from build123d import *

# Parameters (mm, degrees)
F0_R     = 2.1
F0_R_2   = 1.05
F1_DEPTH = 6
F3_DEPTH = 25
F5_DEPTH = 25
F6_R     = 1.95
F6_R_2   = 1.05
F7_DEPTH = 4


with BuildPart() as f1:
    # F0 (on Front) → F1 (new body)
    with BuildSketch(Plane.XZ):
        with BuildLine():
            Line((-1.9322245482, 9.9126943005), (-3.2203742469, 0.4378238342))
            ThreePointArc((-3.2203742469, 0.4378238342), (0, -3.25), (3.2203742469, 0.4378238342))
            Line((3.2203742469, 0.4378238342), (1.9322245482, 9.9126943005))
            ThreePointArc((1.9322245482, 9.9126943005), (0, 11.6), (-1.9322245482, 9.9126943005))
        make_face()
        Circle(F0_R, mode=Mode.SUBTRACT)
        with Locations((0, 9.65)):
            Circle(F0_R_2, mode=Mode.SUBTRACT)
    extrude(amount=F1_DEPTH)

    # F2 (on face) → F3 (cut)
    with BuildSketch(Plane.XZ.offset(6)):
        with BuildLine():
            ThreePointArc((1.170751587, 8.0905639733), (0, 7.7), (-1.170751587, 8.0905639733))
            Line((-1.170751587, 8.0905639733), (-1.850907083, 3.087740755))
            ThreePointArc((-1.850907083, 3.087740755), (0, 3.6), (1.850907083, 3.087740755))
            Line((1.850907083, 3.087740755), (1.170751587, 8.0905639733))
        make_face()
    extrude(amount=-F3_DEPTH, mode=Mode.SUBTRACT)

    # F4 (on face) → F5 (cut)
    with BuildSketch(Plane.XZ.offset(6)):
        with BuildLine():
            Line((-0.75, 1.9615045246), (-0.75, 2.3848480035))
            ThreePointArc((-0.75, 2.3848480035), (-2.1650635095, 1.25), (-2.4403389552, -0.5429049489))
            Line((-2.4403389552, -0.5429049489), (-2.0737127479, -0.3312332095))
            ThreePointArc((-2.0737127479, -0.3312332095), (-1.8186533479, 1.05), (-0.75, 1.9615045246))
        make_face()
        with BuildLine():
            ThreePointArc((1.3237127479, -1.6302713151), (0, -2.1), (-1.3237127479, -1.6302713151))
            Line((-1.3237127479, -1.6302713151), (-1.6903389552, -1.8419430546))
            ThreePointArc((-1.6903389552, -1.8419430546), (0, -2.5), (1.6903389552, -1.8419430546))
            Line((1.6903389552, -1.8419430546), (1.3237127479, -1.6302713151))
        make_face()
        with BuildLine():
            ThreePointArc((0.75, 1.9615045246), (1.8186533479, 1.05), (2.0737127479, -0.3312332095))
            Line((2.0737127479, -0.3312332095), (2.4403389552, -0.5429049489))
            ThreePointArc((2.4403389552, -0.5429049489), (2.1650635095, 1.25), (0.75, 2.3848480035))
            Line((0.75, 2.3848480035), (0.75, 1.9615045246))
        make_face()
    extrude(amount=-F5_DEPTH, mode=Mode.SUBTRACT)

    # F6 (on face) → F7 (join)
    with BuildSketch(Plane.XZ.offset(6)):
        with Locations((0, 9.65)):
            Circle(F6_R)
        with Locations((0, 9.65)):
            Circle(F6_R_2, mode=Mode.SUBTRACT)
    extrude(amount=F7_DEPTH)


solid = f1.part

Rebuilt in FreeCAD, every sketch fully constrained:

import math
import FreeCAD as App
import Part
import Sketcher

V = App.Vector
Q = App.Units.Quantity

doc = App.newDocument("Part")
body = doc.addObject("PartDesign::Body", "Body")

# Sketch on XZ plane
sketch1 = doc.addObject("Sketcher::SketchObject", "Sketch")
body.addObject(sketch1)
sketch1.AttachmentSupport = (doc.XZ_Plane, [""])
sketch1.MapMode = "FlatFace"
sketch1.addGeometry(Part.LineSegment(V(-1.932225, 9.912694, 0), V(-3.220374, 0.437824, 0)), False)
sketch1.addGeometry(Part.ArcOfCircle(Part.Circle(V(0, 0, 0), V(0, 0, 1), 3.25), math.radians(172.257858), math.radians(367.742142)), False)
sketch1.addGeometry(Part.LineSegment(V(3.220374, 0.437824, 0), V(1.932225, 9.912694, 0)), False)
sketch1.addGeometry(Part.ArcOfCircle(Part.Circle(V(0, 9.65, 0), V(0, 0, 1), 1.95), math.radians(7.742142), math.radians(172.257858)), False)
sketch1.addGeometry(Part.Circle(V(0, 0, 0), V(0, 0, 1), 2.1), False)
sketch1.addGeometry(Part.Circle(V(0, 9.65, 0), V(0, 0, 1), 1.05), False)
sketch1.addConstraint(Sketcher.Constraint("Tangent", 0, 2, 1, 1))
sketch1.addConstraint(Sketcher.Constraint("Tangent", 1, 2, 2, 1))
sketch1.addConstraint(Sketcher.Constraint("Tangent", 2, 2, 3, 1))
sketch1.addConstraint(Sketcher.Constraint("Tangent", 3, 2, 0, 1))
sketch1.addConstraint(Sketcher.Constraint("Coincident", 1, 3, -1, 1))
sketch1.addConstraint(Sketcher.Constraint("Coincident", 4, 3, -1, 1))
sketch1.addConstraint(Sketcher.Constraint("Coincident", 5, 3, 3, 3))
sketch1.addConstraint(Sketcher.Constraint("PointOnObject", 3, 3, -2))
sketch1.addConstraint(Sketcher.Constraint("Diameter", 4, 4.2))
sketch1.addConstraint(Sketcher.Constraint("Diameter", 5, 2.1))
sketch1.addConstraint(Sketcher.Constraint("Radius", 1, 3.25))
sketch1.addConstraint(Sketcher.Constraint("Radius", 3, 1.95))
sketch1.addConstraint(Sketcher.Constraint("DistanceY", -1, 1, 3, 3, 9.65))
pad1 = doc.addObject("PartDesign::Pad", "Pad")
body.addObject(pad1)
pad1.Profile = sketch1
pad1.Length = 6

# Sketch on XZ plane
sketch2 = doc.addObject("Sketcher::SketchObject", "Sketch001")
body.addObject(sketch2)
sketch2.AttachmentSupport = (doc.XZ_Plane, [""])
sketch2.MapMode = "FlatFace"
sketch2.AttachmentOffset = App.Placement(V(0, 0, 6), App.Rotation())
sketch2.addGeometry(Part.ArcOfCircle(Part.Circle(V(0, 9.65, 0), V(0, 0, 1), 1.95), math.radians(-126.897507), math.radians(-53.102493)), False)
sketch2.addGeometry(Part.LineSegment(V(-1.170752, 8.090564, 0), V(-1.850907, 3.087741, 0)), False)
sketch2.addGeometry(Part.ArcOfCircle(Part.Circle(V(0, 0, 0), V(0, 0, 1), 3.6), math.radians(59.059954), math.radians(120.940046)), False)
sketch2.addGeometry(Part.LineSegment(V(1.850907, 3.087741, 0), V(1.170752, 8.090564, 0)), False)
sketch2.addConstraint(Sketcher.Constraint("Coincident", 0, 1, 1, 1))
sketch2.addConstraint(Sketcher.Constraint("Coincident", 1, 2, 2, 2))
sketch2.addConstraint(Sketcher.Constraint("Coincident", 2, 1, 3, 1))
sketch2.addConstraint(Sketcher.Constraint("Coincident", 3, 2, 0, 2))
sketch2.addConstraint(Sketcher.Constraint("Coincident", 2, 3, -1, 1))
sketch2.addConstraint(Sketcher.Constraint("Symmetric", 0, 1, 3, 2, -2))
sketch2.addConstraint(Sketcher.Constraint("Horizontal", 1, 2, 2, 1))
sketch2.addConstraint(Sketcher.Constraint("Radius", 2, 3.6))
sketch2.addConstraint(Sketcher.Constraint("Radius", 0, 1.95))
sketch2.addConstraint(Sketcher.Constraint("DistanceY", -1, 1, 0, 3, 9.65))
sketch2.addConstraint(Sketcher.Constraint("DistanceX", 0, 1, -1, 1, 1.170752))
sketch2.addConstraint(Sketcher.Constraint("DistanceY", -1, 1, 1, 2, 3.087741))
pocket1 = doc.addObject("PartDesign::Pocket", "Pocket")
body.addObject(pocket1)
pocket1.Profile = sketch2
pocket1.Length = 25

# Sketch on XZ plane
sketch3 = doc.addObject("Sketcher::SketchObject", "Sketch002")
body.addObject(sketch3)
sketch3.AttachmentSupport = (doc.XZ_Plane, [""])
sketch3.MapMode = "FlatFace"
sketch3.AttachmentOffset = App.Placement(V(0, 0, 6), App.Rotation())
sketch3.addGeometry(Part.LineSegment(V(-0.75, 1.961505, 0), V(-0.75, 2.384848, 0)), False)
sketch3.addGeometry(Part.ArcOfCircle(Part.Circle(V(0, 0, 0), V(0, 0, 1), 2.5), math.radians(107.457603), math.radians(192.542397)), False)
sketch3.addGeometry(Part.LineSegment(V(-2.440339, -0.542905, 0), V(-2.073713, -0.331233, 0)), False)
sketch3.addGeometry(Part.ArcOfCircle(Part.Circle(V(0, 0, 0), V(0, 0, 1), 2.1), math.radians(110.924832), math.radians(189.075168)), False)
sketch3.addGeometry(Part.ArcOfCircle(Part.Circle(V(0, 0, 0), V(0, 0, 1), 2.1), math.radians(-129.075168), math.radians(-50.924832)), False)
sketch3.addGeometry(Part.LineSegment(V(-1.323713, -1.630271, 0), V(-1.690339, -1.841943, 0)), False)
sketch3.addGeometry(Part.ArcOfCircle(Part.Circle(V(0, 0, 0), V(0, 0, 1), 2.5), math.radians(-132.542397), math.radians(-47.457603)), False)
sketch3.addGeometry(Part.LineSegment(V(1.690339, -1.841943, 0), V(1.323713, -1.630271, 0)), False)
sketch3.addGeometry(Part.ArcOfCircle(Part.Circle(V(0, 0, 0), V(0, 0, 1), 2.1), math.radians(-9.075168), math.radians(69.075168)), False)
sketch3.addGeometry(Part.LineSegment(V(2.073713, -0.331233, 0), V(2.440339, -0.542905, 0)), False)
sketch3.addGeometry(Part.ArcOfCircle(Part.Circle(V(0, 0, 0), V(0, 0, 1), 2.5), math.radians(-12.542397), math.radians(72.542397)), False)
sketch3.addGeometry(Part.LineSegment(V(0.75, 2.384848, 0), V(0.75, 1.961505, 0)), False)
sketch3.addConstraint(Sketcher.Constraint("Coincident", 0, 2, 1, 1))
sketch3.addConstraint(Sketcher.Constraint("Coincident", 1, 2, 2, 1))
sketch3.addConstraint(Sketcher.Constraint("Coincident", 2, 2, 3, 2))
sketch3.addConstraint(Sketcher.Constraint("Coincident", 3, 1, 0, 1))
sketch3.addConstraint(Sketcher.Constraint("Coincident", 4, 1, 5, 1))
sketch3.addConstraint(Sketcher.Constraint("Coincident", 5, 2, 6, 1))
sketch3.addConstraint(Sketcher.Constraint("Coincident", 6, 2, 7, 1))
sketch3.addConstraint(Sketcher.Constraint("Coincident", 7, 2, 4, 2))
sketch3.addConstraint(Sketcher.Constraint("Coincident", 8, 1, 9, 1))
sketch3.addConstraint(Sketcher.Constraint("Coincident", 9, 2, 10, 1))
sketch3.addConstraint(Sketcher.Constraint("Coincident", 10, 2, 11, 1))
sketch3.addConstraint(Sketcher.Constraint("Coincident", 11, 2, 8, 2))
sketch3.addConstraint(Sketcher.Constraint("Vertical", 0))
sketch3.addConstraint(Sketcher.Constraint("Vertical", 11))
sketch3.addConstraint(Sketcher.Constraint("Coincident", 1, 3, -1, 1))
sketch3.addConstraint(Sketcher.Constraint("Coincident", 3, 3, -1, 1))
sketch3.addConstraint(Sketcher.Constraint("Coincident", 4, 3, -1, 1))
sketch3.addConstraint(Sketcher.Constraint("Coincident", 6, 3, -1, 1))
sketch3.addConstraint(Sketcher.Constraint("Coincident", 8, 3, -1, 1))
sketch3.addConstraint(Sketcher.Constraint("Coincident", 10, 3, -1, 1))
sketch3.addConstraint(Sketcher.Constraint("Equal", 3, 4))
sketch3.addConstraint(Sketcher.Constraint("Equal", 1, 6))
sketch3.addConstraint(Sketcher.Constraint("Equal", 4, 8))
sketch3.addConstraint(Sketcher.Constraint("Equal", 6, 10))
sketch3.addConstraint(Sketcher.Constraint("Parallel", 2, 5))
sketch3.addConstraint(Sketcher.Constraint("Parallel", 7, 9))
sketch3.addConstraint(Sketcher.Constraint("Horizontal", 5, 2, 6, 2))
sketch3.addConstraint(Sketcher.Constraint("Horizontal", 4, 1, 7, 2))
sketch3.addConstraint(Sketcher.Constraint("Horizontal", 2, 2, 8, 1))
sketch3.addConstraint(Sketcher.Constraint("Horizontal", 0, 2, 10, 2))
sketch3.addConstraint(Sketcher.Constraint("Equal", 2, 5))
sketch3.addConstraint(Sketcher.Constraint("Radius", 1, 2.5))
sketch3.addConstraint(Sketcher.Constraint("Radius", 3, 2.1))
sketch3.addConstraint(Sketcher.Constraint("Angle", 2, Q("30 deg")))
sketch3.addConstraint(Sketcher.Constraint("DistanceX", 0, 2, 10, 2, 1.5))
sketch3.addConstraint(Sketcher.Constraint("DistanceX", 2, 2, 4, 1, 0.75))
pocket2 = doc.addObject("PartDesign::Pocket", "Pocket001")
body.addObject(pocket2)
pocket2.Profile = sketch3
pocket2.Length = 25

# Sketch on XZ plane
sketch4 = doc.addObject("Sketcher::SketchObject", "Sketch003")
body.addObject(sketch4)
sketch4.AttachmentSupport = (doc.XZ_Plane, [""])
sketch4.MapMode = "FlatFace"
sketch4.AttachmentOffset = App.Placement(V(0, 0, 6), App.Rotation())
sketch4.addGeometry(Part.Circle(V(0, 9.65, 0), V(0, 0, 1), 1.95), False)
sketch4.addGeometry(Part.Circle(V(0, 9.65, 0), V(0, 0, 1), 1.05), False)
sketch4.addConstraint(Sketcher.Constraint("Coincident", 1, 3, 0, 3))
sketch4.addConstraint(Sketcher.Constraint("PointOnObject", 0, 3, -2))
sketch4.addConstraint(Sketcher.Constraint("Diameter", 0, 3.9))
sketch4.addConstraint(Sketcher.Constraint("Diameter", 1, 2.1))
sketch4.addConstraint(Sketcher.Constraint("DistanceY", -1, 1, 0, 3, 9.65))
pad2 = doc.addObject("PartDesign::Pad", "Pad001")
body.addObject(pad2)
pad2.Profile = sketch4
pad2.Length = 4

doc.recompute()
